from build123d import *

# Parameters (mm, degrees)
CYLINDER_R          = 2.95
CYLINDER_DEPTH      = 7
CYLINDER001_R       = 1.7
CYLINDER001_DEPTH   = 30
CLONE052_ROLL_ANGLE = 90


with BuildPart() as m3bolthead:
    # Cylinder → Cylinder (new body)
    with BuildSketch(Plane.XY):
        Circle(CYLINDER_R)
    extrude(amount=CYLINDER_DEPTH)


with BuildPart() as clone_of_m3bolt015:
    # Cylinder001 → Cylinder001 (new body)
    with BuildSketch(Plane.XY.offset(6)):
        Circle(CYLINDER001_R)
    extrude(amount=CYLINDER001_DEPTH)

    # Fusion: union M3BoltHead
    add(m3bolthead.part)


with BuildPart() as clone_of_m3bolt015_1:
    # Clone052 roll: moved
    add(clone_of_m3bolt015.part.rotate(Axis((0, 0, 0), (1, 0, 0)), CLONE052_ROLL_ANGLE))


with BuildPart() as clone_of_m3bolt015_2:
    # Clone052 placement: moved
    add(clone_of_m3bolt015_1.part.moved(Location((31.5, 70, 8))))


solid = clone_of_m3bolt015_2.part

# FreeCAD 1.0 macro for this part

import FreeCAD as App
import Part
import Sketcher

V = App.Vector
Q = App.Units.Quantity

doc = App.newDocument("Part")
body = doc.addObject("PartDesign::Body", "Body")

# Sketch on XY plane
sketch1 = body.newObject("Sketcher::SketchObject", "Sketch")
sketch1.AttachmentSupport = (doc.getObject("XY_Plane"), [""])
sketch1.MapMode = "FlatFace"
sketch1.addGeometry(Part.Circle(V(0, 0, 0), V(0, 0, 1), 3), False)
sketch1.addConstraint(Sketcher.Constraint("Coincident", 0, 3, -1, 1))
sketch1.addConstraint(Sketcher.Constraint("Diameter", 0, Q("5.9 mm")))
pad1 = body.newObject("PartDesign::Pad", "Pad")
pad1.Profile = sketch1
pad1.Length = 7
body2 = doc.addObject("PartDesign::Body", "Body001")

# Sketch on XY plane
sketch2 = body2.newObject("Sketcher::SketchObject", "Sketch001")
sketch2.AttachmentSupport = (doc.getObject("XY_Plane001"), [""])
sketch2.MapMode = "FlatFace"
sketch2.AttachmentOffset = App.Placement(V(0, 0, 6), App.Rotation())
sketch2.addGeometry(Part.Circle(V(0, 0, 0), V(0, 0, 1), 1.7), False)
sketch2.addConstraint(Sketcher.Constraint("Coincident", 0, 3, -1, 1))
sketch2.addConstraint(Sketcher.Constraint("Diameter", 0, Q("3.4 mm")))
pad2 = body2.newObject("PartDesign::Pad", "Pad001")
pad2.Profile = sketch2
pad2.Length = 30
doc.recompute()

boolean = body2.newObject("PartDesign::Boolean", "Boolean")
boolean.Type = "Fuse"
boolean.addObjects([body])
body3 = doc.addObject("PartDesign::Body", "Body002")
doc.recompute()

body2.Placement = App.Placement(V(0, 0, 0), App.Rotation(V(1, 0, 0), 90))
boolean2 = body3.newObject("PartDesign::Boolean", "Boolean001")
boolean2.Type = "Fuse"
boolean2.addObjects([body2])
body4 = doc.addObject("PartDesign::Body", "Body003")
doc.recompute()

body3.Placement = App.Placement(V(31.5, 70, 8), App.Rotation(V(0, 0, 1), 0))
boolean3 = body4.newObject("PartDesign::Boolean", "Boolean002")
boolean3.Type = "Fuse"
boolean3.addObjects([body3])

doc.recompute()
